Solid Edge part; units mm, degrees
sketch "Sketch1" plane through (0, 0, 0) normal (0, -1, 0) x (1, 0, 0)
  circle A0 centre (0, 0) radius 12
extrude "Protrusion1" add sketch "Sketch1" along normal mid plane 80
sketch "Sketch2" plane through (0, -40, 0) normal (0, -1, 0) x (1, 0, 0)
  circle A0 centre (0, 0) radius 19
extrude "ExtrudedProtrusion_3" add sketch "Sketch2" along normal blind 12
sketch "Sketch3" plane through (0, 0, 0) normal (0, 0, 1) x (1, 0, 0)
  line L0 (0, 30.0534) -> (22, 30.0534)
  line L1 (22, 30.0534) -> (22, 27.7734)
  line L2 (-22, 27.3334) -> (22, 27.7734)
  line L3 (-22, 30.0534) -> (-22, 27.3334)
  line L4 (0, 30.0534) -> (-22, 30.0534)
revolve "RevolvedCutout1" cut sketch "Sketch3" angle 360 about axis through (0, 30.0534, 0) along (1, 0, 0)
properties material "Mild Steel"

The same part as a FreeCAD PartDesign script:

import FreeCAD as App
import Part
import Sketcher
from FreeCAD import Vector

doc = App.newDocument("Part")
body = doc.addObject("PartDesign::Body", "Body")

sketch1 = body.newObject("Sketcher::SketchObject", "Sketch")
sketch1.AttachmentSupport = (doc.getObject("XZ_Plane"), [""])
sketch1.MapMode = "FlatFace"
sketch1.addGeometry(Part.Circle(Vector(0, 0, 0), Vector(0, 0, 1), 12), False)
sketch1.addConstraint([
    Sketcher.Constraint("Coincident", 0, 3, -1, 1),
    Sketcher.Constraint("Diameter", 0, 24.0),
])
pad1 = body.newObject("PartDesign::Pad", "Pad")
pad1.Profile = sketch1
pad1.Length = 80
pad1.Midplane = True

sketch2 = body.newObject("Sketcher::SketchObject", "Sketch001")
sketch2.AttachmentSupport = (doc.getObject("XZ_Plane"), [""])
sketch2.MapMode = "FlatFace"
sketch2.AttachmentOffset = App.Placement(Vector(0, 0, 40), App.Rotation())
sketch2.addGeometry(Part.Circle(Vector(0, 0, 0), Vector(0, 0, 1), 19), False)
sketch2.addConstraint([
    Sketcher.Constraint("Coincident", 0, 3, -1, 1),
    Sketcher.Constraint("Diameter", 0, 38.0),
])
pad2 = body.newObject("PartDesign::Pad", "Pad001")
pad2.Profile = sketch2
pad2.Length = 12

sketch3 = body.newObject("Sketcher::SketchObject", "Sketch002")
sketch3.AttachmentSupport = (doc.getObject("XY_Plane"), [""])
sketch3.MapMode = "FlatFace"
sketch3.addGeometry([
    Part.LineSegment(Vector(22, 30.0534, 0), Vector(-22, 30.0534, 0)),
    Part.LineSegment(Vector(-22, 30.0534, 0), Vector(-22, 27.3334, 0)),
    Part.LineSegment(Vector(-22, 27.3334, 0), Vector(22, 27.7734, 0)),
    Part.LineSegment(Vector(22, 27.7734, 0), Vector(22, 30.0534, 0)),
], False)
sketch3.addGeometry(Part.LineSegment(Vector(-22, 30.0534, 0), Vector(22, 30.0534, 0)), True)
sketch3.addConstraint([
    Sketcher.Constraint("Coincident", 0, 2, 1, 1),
    Sketcher.Constraint("Coincident", 1, 2, 2, 1),
    Sketcher.Constraint("Coincident", 2, 2, 3, 1),
    Sketcher.Constraint("Coincident", 3, 2, 0, 1),
    Sketcher.Constraint("Horizontal", 0),
    Sketcher.Constraint("Vertical", 1),
    Sketcher.Constraint("Vertical", 3),
    Sketcher.Constraint("Horizontal", 4),
    Sketcher.Constraint("Coincident", 4, 1, 0, 2),
    Sketcher.Constraint("Vertical", 2, 2, 4, 2),
    Sketcher.Constraint("DistanceX", 0, 2, 0, 1, 44.0),
    Sketcher.Constraint("DistanceX", 0, 2, -1, 1, 22.0),
    Sketcher.Constraint("DistanceY", 1, 2, 1, 1, 2.72),
    Sketcher.Constraint("DistanceY", 3, 1, 3, 2, 2.28),
    Sketcher.Constraint("DistanceY", -1, 1, 0, 2, 30.0534),
])
groove = body.newObject("PartDesign::Groove", "Groove")
groove.Profile = sketch3
groove.ReferenceAxis = (sketch3, ["Axis0"])
groove.Angle = 360

doc.recompute()
